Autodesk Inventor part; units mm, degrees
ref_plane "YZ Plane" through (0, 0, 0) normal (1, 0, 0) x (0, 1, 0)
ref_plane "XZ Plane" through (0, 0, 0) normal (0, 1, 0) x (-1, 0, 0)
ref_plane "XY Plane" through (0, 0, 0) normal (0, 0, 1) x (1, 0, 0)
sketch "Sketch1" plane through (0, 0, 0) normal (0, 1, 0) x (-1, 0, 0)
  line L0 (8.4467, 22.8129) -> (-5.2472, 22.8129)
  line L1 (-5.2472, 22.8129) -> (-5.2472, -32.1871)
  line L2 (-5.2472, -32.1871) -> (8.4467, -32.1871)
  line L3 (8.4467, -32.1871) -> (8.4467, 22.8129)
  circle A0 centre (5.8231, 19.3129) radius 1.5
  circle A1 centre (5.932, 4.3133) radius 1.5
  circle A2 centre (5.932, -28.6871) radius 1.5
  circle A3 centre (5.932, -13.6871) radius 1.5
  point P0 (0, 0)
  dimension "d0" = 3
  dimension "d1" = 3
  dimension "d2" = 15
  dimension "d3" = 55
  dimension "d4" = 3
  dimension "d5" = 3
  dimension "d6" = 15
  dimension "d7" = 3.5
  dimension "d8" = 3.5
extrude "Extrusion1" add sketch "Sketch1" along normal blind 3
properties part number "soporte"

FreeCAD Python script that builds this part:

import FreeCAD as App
import Part
import Sketcher

V = App.Vector

doc = App.newDocument("Part")
body = doc.addObject("PartDesign::Body", "Body")

sketch1 = body.newObject("Sketcher::SketchObject", "Sketch")
sketch1.AttachmentSupport = (doc.getObject("XZ_Plane"), [""])
sketch1.MapMode = "FlatFace"
sketch1.addGeometry([
    Part.LineSegment(V(-8.4, -32.2, 0), V(-8.4, 22.8, 0)),
    Part.LineSegment(V(-8.4, 22.8, 0), V(5.2, 22.8, 0)),
    Part.LineSegment(V(5.2, 22.8, 0), V(5.2, -32.2, 0)),
    Part.LineSegment(V(5.2, -32.2, 0), V(-8.4, -32.2, 0)),
    Part.Circle(V(-5.9, -28.7, 0), V(0, 0, 1), 1.5),
    Part.Circle(V(-5.9, -13.7, 0), V(0, 0, 1), 1.5),
    Part.Circle(V(-5.9, 4.3, 0), V(0, 0, 1), 1.5),
    Part.Circle(V(-5.8, 19.3, 0), V(0, 0, 1), 1.5),
], False)
sketch1.addConstraint([
    Sketcher.Constraint("Coincident", 0, 2, 1, 1),
    Sketcher.Constraint("Coincident", 1, 2, 2, 1),
    Sketcher.Constraint("Coincident", 2, 2, 3, 1),
    Sketcher.Constraint("Coincident", 3, 2, 0, 1),
    Sketcher.Constraint("Vertical", 0),
    Sketcher.Constraint("Horizontal", 1),
    Sketcher.Constraint("Vertical", 2),
    Sketcher.Constraint("Horizontal", 3),
    Sketcher.Constraint("Equal", 4, 5),
    Sketcher.Constraint("Equal", 5, 6),
    Sketcher.Constraint("Equal", 6, 7),
    Sketcher.Constraint("Vertical", 4, 3, 5, 3),
    Sketcher.Constraint("Vertical", 5, 3, 6, 3),
    Sketcher.Constraint("Diameter", 4, 3.0),
    Sketcher.Constraint("DistanceY", 0, 1, 0, 2, 55.0),
    Sketcher.Constraint("DistanceY", 4, 3, 5, 3, 15.0),
    Sketcher.Constraint("DistanceY", 7, 3, 0, 2, 3.5),
    Sketcher.Constraint("DistanceY", 2, 2, 4, 3, 3.5),
    Sketcher.Constraint("DistanceY", 6, 3, 7, 3, 14.9996),
    Sketcher.Constraint("DistanceX", 1, 1, 1, 2, 13.694),
    Sketcher.Constraint("DistanceX", 4, 3, -1, 1, 5.932),
    Sketcher.Constraint("DistanceY", 4, 3, -1, 1, 28.687),
    Sketcher.Constraint("DistanceX", 7, 3, -1, 1, 5.823),
    Sketcher.Constraint("DistanceX", 0, 2, -1, 1, 8.4467),
])
pad1 = body.newObject("PartDesign::Pad", "Pad")
pad1.Profile = sketch1
pad1.Length = 3
pad1.Reversed = True

doc.recompute()
